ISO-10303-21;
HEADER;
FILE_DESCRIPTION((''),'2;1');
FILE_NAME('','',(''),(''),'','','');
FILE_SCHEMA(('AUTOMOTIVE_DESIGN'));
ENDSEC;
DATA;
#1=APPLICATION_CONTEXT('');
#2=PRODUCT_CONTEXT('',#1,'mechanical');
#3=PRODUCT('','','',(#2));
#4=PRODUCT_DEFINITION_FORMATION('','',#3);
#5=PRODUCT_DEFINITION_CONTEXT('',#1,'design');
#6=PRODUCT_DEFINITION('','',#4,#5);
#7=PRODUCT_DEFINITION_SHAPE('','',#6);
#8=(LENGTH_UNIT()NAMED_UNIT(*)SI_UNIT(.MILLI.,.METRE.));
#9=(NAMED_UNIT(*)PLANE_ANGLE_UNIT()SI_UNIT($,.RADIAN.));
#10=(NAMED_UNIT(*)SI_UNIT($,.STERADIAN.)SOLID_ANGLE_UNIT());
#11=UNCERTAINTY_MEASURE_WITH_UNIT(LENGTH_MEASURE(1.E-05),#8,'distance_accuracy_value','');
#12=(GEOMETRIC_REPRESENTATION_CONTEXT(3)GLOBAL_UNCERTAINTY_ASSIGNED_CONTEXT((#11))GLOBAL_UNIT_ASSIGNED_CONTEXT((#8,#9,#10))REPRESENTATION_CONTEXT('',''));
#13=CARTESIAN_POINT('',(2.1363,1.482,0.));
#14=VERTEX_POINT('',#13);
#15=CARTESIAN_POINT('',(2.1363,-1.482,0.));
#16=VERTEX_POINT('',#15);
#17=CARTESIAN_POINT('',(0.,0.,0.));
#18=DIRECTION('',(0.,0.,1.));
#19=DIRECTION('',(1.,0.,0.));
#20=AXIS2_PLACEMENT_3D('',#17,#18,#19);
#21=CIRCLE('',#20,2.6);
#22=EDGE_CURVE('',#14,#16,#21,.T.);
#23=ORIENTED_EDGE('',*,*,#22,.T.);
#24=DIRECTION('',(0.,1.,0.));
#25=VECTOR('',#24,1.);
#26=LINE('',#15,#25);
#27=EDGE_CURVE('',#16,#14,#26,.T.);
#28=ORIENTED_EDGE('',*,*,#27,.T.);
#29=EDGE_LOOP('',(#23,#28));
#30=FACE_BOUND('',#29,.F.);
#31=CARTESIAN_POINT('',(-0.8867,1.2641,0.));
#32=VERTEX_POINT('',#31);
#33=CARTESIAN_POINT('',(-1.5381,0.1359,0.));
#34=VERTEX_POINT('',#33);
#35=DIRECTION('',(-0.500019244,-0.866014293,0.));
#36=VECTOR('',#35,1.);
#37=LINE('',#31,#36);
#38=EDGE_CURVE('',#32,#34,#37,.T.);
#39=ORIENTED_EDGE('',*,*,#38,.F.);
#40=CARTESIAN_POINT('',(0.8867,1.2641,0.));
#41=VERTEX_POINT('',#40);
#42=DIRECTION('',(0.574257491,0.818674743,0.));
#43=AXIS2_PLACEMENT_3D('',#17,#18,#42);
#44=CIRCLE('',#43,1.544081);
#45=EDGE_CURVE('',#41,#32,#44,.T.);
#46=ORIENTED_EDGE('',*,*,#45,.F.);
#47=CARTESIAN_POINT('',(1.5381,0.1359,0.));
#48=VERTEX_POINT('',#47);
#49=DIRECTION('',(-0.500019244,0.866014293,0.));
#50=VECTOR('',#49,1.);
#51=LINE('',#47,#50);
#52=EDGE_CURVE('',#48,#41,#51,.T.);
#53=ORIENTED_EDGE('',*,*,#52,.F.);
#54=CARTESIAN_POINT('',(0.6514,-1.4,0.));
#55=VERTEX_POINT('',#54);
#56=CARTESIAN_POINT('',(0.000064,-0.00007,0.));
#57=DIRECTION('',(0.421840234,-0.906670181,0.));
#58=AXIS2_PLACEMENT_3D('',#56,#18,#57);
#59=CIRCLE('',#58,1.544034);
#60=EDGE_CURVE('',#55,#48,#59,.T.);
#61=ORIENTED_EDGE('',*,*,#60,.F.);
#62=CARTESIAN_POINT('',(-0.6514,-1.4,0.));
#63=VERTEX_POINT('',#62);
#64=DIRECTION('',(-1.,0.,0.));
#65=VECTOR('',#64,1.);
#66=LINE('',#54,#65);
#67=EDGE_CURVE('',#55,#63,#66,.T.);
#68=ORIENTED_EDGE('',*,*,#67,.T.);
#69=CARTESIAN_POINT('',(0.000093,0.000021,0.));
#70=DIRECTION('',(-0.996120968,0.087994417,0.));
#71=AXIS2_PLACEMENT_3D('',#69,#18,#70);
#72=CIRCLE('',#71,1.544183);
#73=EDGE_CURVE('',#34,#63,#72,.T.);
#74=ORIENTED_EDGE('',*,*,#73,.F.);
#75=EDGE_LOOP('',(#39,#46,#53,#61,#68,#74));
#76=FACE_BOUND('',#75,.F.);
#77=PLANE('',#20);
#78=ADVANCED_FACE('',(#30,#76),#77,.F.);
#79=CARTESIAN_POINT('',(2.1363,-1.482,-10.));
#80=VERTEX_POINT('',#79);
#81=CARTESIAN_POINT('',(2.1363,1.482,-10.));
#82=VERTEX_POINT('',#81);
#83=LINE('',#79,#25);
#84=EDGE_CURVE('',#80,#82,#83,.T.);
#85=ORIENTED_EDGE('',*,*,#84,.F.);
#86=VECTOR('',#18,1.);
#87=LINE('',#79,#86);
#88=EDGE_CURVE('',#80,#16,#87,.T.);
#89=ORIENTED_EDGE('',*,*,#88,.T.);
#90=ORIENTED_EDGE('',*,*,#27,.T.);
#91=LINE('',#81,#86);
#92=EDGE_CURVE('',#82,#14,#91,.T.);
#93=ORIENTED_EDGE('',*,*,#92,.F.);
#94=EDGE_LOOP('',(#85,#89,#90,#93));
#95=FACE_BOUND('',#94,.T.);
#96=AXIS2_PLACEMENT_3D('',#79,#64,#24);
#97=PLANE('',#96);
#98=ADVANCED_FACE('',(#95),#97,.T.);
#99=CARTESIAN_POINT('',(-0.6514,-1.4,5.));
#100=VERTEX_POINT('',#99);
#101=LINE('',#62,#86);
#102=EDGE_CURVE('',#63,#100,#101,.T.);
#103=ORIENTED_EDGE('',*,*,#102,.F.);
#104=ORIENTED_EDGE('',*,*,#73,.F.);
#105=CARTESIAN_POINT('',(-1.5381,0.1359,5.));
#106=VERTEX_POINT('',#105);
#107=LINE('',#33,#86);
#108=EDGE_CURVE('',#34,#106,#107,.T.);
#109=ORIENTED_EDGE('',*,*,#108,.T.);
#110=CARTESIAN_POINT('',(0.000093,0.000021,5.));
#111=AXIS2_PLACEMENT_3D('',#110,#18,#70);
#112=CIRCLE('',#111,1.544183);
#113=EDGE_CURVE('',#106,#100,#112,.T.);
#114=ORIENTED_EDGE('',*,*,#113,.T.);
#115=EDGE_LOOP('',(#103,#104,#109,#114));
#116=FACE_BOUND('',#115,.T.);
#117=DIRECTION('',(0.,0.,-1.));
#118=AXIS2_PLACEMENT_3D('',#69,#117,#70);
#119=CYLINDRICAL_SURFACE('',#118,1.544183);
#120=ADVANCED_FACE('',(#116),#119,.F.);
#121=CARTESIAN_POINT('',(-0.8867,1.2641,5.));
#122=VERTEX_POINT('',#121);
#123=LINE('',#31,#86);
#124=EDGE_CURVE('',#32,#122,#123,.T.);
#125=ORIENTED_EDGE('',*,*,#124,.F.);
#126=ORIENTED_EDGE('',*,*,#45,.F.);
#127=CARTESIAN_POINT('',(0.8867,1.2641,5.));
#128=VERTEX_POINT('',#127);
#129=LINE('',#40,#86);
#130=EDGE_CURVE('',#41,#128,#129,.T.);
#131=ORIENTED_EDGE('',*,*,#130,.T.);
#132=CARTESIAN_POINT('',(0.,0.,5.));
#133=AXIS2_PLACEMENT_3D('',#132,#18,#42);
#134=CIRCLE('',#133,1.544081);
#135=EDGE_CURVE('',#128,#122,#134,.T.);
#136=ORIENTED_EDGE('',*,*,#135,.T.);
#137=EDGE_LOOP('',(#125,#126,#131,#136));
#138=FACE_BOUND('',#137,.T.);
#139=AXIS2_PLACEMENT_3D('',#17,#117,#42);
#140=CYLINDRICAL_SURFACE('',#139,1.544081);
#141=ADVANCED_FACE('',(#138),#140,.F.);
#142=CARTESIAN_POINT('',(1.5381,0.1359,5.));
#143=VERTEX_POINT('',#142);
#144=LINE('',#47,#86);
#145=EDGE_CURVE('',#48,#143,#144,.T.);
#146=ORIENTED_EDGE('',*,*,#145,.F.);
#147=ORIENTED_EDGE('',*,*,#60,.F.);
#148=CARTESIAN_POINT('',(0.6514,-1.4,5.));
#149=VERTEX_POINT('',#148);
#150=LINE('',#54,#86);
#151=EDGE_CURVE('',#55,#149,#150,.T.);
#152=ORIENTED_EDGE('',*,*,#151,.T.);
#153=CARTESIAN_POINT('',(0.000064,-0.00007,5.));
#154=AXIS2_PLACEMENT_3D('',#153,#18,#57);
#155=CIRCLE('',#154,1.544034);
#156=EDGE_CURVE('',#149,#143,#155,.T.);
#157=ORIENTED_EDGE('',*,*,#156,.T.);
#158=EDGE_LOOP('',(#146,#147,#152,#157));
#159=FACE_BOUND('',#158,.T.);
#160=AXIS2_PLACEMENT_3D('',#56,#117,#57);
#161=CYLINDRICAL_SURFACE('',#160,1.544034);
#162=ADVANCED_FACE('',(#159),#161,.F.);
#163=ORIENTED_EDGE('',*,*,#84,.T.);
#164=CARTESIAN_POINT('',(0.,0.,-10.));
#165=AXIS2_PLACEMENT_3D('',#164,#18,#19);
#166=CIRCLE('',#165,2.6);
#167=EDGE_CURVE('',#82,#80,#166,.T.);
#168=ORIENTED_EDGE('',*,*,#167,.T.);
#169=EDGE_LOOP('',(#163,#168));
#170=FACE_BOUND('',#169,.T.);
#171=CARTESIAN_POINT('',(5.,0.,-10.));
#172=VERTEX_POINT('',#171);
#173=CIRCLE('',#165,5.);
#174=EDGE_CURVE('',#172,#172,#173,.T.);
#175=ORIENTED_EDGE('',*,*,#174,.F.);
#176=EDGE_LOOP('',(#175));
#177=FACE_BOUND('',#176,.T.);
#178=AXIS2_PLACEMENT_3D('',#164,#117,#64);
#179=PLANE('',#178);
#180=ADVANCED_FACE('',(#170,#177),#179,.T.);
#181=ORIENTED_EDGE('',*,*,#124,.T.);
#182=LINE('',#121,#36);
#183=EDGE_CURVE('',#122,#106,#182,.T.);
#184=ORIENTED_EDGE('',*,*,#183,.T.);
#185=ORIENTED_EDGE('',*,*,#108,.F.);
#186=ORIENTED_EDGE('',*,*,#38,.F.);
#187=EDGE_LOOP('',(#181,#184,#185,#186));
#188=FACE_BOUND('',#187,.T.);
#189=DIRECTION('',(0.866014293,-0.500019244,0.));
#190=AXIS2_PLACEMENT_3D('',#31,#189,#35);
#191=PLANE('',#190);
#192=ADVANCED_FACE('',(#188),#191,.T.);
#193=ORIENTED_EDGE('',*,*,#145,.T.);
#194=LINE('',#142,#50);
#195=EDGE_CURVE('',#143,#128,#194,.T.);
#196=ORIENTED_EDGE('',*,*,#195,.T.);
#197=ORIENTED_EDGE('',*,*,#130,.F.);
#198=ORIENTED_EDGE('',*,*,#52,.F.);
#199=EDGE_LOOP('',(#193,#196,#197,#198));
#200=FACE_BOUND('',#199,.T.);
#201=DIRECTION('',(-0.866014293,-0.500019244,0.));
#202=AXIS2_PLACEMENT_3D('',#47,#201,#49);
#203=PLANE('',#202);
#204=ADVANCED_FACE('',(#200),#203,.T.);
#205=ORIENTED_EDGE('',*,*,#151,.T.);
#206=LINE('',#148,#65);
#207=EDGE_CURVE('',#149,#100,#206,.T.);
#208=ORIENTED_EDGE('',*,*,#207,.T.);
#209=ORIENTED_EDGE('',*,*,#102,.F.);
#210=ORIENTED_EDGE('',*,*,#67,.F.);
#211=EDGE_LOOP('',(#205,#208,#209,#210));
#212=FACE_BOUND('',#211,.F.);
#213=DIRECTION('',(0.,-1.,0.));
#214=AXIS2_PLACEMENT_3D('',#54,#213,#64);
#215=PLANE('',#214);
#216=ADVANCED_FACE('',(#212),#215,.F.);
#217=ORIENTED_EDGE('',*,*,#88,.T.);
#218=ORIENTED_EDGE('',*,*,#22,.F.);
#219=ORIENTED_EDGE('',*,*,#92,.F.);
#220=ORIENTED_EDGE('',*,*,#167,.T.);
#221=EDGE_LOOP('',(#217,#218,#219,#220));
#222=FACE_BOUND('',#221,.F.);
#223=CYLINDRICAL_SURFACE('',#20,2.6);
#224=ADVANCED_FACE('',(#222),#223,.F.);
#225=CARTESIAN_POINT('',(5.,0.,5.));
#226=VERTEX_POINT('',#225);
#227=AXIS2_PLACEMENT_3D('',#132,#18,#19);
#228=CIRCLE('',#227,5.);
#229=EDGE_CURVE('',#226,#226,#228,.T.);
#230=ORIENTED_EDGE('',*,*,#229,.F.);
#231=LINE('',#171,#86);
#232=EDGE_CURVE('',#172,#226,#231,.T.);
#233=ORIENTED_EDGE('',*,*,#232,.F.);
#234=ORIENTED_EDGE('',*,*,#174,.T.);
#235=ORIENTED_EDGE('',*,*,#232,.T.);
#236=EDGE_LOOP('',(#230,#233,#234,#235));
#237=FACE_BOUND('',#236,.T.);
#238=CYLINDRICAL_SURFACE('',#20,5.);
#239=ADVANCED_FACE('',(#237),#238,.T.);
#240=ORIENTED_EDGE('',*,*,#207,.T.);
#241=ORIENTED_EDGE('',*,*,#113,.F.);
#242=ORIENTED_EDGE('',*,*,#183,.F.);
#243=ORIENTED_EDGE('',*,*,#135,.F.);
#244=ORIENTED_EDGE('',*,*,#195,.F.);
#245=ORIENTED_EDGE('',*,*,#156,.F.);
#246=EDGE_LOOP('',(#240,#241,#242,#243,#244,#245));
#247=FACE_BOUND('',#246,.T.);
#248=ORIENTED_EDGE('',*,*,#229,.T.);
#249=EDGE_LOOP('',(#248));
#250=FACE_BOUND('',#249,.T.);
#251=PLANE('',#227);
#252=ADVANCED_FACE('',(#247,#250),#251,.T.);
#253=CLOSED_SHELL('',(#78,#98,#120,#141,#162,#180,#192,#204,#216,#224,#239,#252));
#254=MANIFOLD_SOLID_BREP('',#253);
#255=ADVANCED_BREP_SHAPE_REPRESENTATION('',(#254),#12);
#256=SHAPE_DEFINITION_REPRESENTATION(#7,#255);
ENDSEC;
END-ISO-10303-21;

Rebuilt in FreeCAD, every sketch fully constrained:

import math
import FreeCAD as App
import Part
import Sketcher
Q = App.Units.Quantity

doc = App.newDocument("Part")
body = doc.addObject("PartDesign::Body", "Body")

sketch1 = body.newObject("Sketcher::SketchObject", "Sketch")
sketch1.AttachmentSupport = (doc.getObject("XY_Plane"), [""])
sketch1.MapMode = "FlatFace"
sketch1.addGeometry([
    Part.Circle(App.Vector(0, 0, 0), App.Vector(0, 0, 1), 5),
    Part.Circle(App.Vector(0, 0, 0), App.Vector(0, 0, 1), 2.6),
], False)
sketch1.addConstraint([
    Sketcher.Constraint("Coincident", 0, 3, -1, 1),
    Sketcher.Constraint("Coincident", 1, 3, -1, 1),
    Sketcher.Constraint("Diameter", 0, Q("10 mm")),
    Sketcher.Constraint("Diameter", 1, Q("5.2 mm")),
])
pad1 = body.newObject("PartDesign::Pad", "Pad")
pad1.Profile = sketch1
pad1.Length = 10
pad1.Reversed = True

sketch2 = body.newObject("Sketcher::SketchObject", "Sketch001")
sketch2.AttachmentSupport = (doc.getObject("XY_Plane"), [""])
sketch2.MapMode = "FlatFace"
sketch2.addGeometry([
    Part.Circle(App.Vector(0, 0, 0), App.Vector(0, 0, 1), 5),
    Part.ArcOfCircle(Part.Circle(App.Vector(0, 0, 0), App.Vector(0, 0, 1), 1.5), math.radians(-65), math.radians(5)),
    Part.LineSegment(App.Vector(0.7, -1.4, 0), App.Vector(-0.7, -1.4, 0)),
    Part.ArcOfCircle(Part.Circle(App.Vector(0, 0, 0), App.Vector(0, 0, 1), 1.5), math.radians(175), math.radians(245)),
    Part.LineSegment(App.Vector(-1.5, 0.1, 0), App.Vector(-0.9, 1.3, 0)),
    Part.ArcOfCircle(Part.Circle(App.Vector(0, 0, 0), App.Vector(0, 0, 1), 1.5), math.radians(55), math.radians(125)),
    Part.LineSegment(App.Vector(0.9, 1.3, 0), App.Vector(1.5, 0.1, 0)),
], False)
sketch2.addConstraint([
    Sketcher.Constraint("Coincident", 1, 1, 2, 1),
    Sketcher.Constraint("Coincident", 2, 2, 3, 2),
    Sketcher.Constraint("Coincident", 3, 1, 4, 1),
    Sketcher.Constraint("Coincident", 4, 2, 5, 2),
    Sketcher.Constraint("Coincident", 5, 1, 6, 1),
    Sketcher.Constraint("Coincident", 6, 2, 1, 2),
    Sketcher.Constraint("Horizontal", 2),
    Sketcher.Constraint("Coincident", 0, 3, -1, 1),
    Sketcher.Constraint("Coincident", 1, 3, -1, 1),
    Sketcher.Constraint("Coincident", 3, 3, -1, 1),
    Sketcher.Constraint("Coincident", 5, 3, -1, 1),
    Sketcher.Constraint("Equal", 1, 3),
    Sketcher.Constraint("Equal", 3, 5),
    Sketcher.Constraint("Horizontal", 4, 2, 5, 1),
    Sketcher.Constraint("Horizontal", 3, 1, 6, 2),
    Sketcher.Constraint("Diameter", 0, Q("10 mm")),
    Sketcher.Constraint("Radius", 1, Q("1.544 mm")),
    Sketcher.Constraint("DistanceY", 1, 1, -1, 1, Q("1.4 mm")),
    Sketcher.Constraint("DistanceY", -1, 1, 3, 1, Q("0.136 mm")),
    Sketcher.Constraint("DistanceY", -1, 1, 4, 2, Q("1.264 mm")),
])
pad2 = body.newObject("PartDesign::Pad", "Pad001")
pad2.Profile = sketch2
pad2.Length = 5

sketch3 = body.newObject("Sketcher::SketchObject", "Sketch002")
sketch3.AttachmentSupport = (doc.getObject("XY_Plane"), [""])
sketch3.MapMode = "FlatFace"
sketch3.AttachmentOffset = App.Placement(App.Vector(0, 0, -10), App.Rotation())
sketch3.addGeometry([
    Part.ArcOfCircle(Part.Circle(App.Vector(0, 0, 0), App.Vector(0, 0, 1), 2.6), math.radians(-35), math.radians(35)),
    Part.LineSegment(App.Vector(2.1, 1.5, 0), App.Vector(2.1, -1.5, 0)),
], False)
sketch3.addConstraint([
    Sketcher.Constraint("Coincident", 0, 1, 1, 2),
    Sketcher.Constraint("Coincident", 1, 1, 0, 2),
    Sketcher.Constraint("Vertical", 1),
    Sketcher.Constraint("Coincident", 0, 3, -1, 1),
    Sketcher.Constraint("Radius", 0, Q("2.6 mm")),
    Sketcher.Constraint("DistanceY", 1, 2, 1, 1, Q("2.964 mm")),
])
pad3 = body.newObject("PartDesign::Pad", "Pad002")
pad3.Profile = sketch3
pad3.Length = 10

doc.recompute()
